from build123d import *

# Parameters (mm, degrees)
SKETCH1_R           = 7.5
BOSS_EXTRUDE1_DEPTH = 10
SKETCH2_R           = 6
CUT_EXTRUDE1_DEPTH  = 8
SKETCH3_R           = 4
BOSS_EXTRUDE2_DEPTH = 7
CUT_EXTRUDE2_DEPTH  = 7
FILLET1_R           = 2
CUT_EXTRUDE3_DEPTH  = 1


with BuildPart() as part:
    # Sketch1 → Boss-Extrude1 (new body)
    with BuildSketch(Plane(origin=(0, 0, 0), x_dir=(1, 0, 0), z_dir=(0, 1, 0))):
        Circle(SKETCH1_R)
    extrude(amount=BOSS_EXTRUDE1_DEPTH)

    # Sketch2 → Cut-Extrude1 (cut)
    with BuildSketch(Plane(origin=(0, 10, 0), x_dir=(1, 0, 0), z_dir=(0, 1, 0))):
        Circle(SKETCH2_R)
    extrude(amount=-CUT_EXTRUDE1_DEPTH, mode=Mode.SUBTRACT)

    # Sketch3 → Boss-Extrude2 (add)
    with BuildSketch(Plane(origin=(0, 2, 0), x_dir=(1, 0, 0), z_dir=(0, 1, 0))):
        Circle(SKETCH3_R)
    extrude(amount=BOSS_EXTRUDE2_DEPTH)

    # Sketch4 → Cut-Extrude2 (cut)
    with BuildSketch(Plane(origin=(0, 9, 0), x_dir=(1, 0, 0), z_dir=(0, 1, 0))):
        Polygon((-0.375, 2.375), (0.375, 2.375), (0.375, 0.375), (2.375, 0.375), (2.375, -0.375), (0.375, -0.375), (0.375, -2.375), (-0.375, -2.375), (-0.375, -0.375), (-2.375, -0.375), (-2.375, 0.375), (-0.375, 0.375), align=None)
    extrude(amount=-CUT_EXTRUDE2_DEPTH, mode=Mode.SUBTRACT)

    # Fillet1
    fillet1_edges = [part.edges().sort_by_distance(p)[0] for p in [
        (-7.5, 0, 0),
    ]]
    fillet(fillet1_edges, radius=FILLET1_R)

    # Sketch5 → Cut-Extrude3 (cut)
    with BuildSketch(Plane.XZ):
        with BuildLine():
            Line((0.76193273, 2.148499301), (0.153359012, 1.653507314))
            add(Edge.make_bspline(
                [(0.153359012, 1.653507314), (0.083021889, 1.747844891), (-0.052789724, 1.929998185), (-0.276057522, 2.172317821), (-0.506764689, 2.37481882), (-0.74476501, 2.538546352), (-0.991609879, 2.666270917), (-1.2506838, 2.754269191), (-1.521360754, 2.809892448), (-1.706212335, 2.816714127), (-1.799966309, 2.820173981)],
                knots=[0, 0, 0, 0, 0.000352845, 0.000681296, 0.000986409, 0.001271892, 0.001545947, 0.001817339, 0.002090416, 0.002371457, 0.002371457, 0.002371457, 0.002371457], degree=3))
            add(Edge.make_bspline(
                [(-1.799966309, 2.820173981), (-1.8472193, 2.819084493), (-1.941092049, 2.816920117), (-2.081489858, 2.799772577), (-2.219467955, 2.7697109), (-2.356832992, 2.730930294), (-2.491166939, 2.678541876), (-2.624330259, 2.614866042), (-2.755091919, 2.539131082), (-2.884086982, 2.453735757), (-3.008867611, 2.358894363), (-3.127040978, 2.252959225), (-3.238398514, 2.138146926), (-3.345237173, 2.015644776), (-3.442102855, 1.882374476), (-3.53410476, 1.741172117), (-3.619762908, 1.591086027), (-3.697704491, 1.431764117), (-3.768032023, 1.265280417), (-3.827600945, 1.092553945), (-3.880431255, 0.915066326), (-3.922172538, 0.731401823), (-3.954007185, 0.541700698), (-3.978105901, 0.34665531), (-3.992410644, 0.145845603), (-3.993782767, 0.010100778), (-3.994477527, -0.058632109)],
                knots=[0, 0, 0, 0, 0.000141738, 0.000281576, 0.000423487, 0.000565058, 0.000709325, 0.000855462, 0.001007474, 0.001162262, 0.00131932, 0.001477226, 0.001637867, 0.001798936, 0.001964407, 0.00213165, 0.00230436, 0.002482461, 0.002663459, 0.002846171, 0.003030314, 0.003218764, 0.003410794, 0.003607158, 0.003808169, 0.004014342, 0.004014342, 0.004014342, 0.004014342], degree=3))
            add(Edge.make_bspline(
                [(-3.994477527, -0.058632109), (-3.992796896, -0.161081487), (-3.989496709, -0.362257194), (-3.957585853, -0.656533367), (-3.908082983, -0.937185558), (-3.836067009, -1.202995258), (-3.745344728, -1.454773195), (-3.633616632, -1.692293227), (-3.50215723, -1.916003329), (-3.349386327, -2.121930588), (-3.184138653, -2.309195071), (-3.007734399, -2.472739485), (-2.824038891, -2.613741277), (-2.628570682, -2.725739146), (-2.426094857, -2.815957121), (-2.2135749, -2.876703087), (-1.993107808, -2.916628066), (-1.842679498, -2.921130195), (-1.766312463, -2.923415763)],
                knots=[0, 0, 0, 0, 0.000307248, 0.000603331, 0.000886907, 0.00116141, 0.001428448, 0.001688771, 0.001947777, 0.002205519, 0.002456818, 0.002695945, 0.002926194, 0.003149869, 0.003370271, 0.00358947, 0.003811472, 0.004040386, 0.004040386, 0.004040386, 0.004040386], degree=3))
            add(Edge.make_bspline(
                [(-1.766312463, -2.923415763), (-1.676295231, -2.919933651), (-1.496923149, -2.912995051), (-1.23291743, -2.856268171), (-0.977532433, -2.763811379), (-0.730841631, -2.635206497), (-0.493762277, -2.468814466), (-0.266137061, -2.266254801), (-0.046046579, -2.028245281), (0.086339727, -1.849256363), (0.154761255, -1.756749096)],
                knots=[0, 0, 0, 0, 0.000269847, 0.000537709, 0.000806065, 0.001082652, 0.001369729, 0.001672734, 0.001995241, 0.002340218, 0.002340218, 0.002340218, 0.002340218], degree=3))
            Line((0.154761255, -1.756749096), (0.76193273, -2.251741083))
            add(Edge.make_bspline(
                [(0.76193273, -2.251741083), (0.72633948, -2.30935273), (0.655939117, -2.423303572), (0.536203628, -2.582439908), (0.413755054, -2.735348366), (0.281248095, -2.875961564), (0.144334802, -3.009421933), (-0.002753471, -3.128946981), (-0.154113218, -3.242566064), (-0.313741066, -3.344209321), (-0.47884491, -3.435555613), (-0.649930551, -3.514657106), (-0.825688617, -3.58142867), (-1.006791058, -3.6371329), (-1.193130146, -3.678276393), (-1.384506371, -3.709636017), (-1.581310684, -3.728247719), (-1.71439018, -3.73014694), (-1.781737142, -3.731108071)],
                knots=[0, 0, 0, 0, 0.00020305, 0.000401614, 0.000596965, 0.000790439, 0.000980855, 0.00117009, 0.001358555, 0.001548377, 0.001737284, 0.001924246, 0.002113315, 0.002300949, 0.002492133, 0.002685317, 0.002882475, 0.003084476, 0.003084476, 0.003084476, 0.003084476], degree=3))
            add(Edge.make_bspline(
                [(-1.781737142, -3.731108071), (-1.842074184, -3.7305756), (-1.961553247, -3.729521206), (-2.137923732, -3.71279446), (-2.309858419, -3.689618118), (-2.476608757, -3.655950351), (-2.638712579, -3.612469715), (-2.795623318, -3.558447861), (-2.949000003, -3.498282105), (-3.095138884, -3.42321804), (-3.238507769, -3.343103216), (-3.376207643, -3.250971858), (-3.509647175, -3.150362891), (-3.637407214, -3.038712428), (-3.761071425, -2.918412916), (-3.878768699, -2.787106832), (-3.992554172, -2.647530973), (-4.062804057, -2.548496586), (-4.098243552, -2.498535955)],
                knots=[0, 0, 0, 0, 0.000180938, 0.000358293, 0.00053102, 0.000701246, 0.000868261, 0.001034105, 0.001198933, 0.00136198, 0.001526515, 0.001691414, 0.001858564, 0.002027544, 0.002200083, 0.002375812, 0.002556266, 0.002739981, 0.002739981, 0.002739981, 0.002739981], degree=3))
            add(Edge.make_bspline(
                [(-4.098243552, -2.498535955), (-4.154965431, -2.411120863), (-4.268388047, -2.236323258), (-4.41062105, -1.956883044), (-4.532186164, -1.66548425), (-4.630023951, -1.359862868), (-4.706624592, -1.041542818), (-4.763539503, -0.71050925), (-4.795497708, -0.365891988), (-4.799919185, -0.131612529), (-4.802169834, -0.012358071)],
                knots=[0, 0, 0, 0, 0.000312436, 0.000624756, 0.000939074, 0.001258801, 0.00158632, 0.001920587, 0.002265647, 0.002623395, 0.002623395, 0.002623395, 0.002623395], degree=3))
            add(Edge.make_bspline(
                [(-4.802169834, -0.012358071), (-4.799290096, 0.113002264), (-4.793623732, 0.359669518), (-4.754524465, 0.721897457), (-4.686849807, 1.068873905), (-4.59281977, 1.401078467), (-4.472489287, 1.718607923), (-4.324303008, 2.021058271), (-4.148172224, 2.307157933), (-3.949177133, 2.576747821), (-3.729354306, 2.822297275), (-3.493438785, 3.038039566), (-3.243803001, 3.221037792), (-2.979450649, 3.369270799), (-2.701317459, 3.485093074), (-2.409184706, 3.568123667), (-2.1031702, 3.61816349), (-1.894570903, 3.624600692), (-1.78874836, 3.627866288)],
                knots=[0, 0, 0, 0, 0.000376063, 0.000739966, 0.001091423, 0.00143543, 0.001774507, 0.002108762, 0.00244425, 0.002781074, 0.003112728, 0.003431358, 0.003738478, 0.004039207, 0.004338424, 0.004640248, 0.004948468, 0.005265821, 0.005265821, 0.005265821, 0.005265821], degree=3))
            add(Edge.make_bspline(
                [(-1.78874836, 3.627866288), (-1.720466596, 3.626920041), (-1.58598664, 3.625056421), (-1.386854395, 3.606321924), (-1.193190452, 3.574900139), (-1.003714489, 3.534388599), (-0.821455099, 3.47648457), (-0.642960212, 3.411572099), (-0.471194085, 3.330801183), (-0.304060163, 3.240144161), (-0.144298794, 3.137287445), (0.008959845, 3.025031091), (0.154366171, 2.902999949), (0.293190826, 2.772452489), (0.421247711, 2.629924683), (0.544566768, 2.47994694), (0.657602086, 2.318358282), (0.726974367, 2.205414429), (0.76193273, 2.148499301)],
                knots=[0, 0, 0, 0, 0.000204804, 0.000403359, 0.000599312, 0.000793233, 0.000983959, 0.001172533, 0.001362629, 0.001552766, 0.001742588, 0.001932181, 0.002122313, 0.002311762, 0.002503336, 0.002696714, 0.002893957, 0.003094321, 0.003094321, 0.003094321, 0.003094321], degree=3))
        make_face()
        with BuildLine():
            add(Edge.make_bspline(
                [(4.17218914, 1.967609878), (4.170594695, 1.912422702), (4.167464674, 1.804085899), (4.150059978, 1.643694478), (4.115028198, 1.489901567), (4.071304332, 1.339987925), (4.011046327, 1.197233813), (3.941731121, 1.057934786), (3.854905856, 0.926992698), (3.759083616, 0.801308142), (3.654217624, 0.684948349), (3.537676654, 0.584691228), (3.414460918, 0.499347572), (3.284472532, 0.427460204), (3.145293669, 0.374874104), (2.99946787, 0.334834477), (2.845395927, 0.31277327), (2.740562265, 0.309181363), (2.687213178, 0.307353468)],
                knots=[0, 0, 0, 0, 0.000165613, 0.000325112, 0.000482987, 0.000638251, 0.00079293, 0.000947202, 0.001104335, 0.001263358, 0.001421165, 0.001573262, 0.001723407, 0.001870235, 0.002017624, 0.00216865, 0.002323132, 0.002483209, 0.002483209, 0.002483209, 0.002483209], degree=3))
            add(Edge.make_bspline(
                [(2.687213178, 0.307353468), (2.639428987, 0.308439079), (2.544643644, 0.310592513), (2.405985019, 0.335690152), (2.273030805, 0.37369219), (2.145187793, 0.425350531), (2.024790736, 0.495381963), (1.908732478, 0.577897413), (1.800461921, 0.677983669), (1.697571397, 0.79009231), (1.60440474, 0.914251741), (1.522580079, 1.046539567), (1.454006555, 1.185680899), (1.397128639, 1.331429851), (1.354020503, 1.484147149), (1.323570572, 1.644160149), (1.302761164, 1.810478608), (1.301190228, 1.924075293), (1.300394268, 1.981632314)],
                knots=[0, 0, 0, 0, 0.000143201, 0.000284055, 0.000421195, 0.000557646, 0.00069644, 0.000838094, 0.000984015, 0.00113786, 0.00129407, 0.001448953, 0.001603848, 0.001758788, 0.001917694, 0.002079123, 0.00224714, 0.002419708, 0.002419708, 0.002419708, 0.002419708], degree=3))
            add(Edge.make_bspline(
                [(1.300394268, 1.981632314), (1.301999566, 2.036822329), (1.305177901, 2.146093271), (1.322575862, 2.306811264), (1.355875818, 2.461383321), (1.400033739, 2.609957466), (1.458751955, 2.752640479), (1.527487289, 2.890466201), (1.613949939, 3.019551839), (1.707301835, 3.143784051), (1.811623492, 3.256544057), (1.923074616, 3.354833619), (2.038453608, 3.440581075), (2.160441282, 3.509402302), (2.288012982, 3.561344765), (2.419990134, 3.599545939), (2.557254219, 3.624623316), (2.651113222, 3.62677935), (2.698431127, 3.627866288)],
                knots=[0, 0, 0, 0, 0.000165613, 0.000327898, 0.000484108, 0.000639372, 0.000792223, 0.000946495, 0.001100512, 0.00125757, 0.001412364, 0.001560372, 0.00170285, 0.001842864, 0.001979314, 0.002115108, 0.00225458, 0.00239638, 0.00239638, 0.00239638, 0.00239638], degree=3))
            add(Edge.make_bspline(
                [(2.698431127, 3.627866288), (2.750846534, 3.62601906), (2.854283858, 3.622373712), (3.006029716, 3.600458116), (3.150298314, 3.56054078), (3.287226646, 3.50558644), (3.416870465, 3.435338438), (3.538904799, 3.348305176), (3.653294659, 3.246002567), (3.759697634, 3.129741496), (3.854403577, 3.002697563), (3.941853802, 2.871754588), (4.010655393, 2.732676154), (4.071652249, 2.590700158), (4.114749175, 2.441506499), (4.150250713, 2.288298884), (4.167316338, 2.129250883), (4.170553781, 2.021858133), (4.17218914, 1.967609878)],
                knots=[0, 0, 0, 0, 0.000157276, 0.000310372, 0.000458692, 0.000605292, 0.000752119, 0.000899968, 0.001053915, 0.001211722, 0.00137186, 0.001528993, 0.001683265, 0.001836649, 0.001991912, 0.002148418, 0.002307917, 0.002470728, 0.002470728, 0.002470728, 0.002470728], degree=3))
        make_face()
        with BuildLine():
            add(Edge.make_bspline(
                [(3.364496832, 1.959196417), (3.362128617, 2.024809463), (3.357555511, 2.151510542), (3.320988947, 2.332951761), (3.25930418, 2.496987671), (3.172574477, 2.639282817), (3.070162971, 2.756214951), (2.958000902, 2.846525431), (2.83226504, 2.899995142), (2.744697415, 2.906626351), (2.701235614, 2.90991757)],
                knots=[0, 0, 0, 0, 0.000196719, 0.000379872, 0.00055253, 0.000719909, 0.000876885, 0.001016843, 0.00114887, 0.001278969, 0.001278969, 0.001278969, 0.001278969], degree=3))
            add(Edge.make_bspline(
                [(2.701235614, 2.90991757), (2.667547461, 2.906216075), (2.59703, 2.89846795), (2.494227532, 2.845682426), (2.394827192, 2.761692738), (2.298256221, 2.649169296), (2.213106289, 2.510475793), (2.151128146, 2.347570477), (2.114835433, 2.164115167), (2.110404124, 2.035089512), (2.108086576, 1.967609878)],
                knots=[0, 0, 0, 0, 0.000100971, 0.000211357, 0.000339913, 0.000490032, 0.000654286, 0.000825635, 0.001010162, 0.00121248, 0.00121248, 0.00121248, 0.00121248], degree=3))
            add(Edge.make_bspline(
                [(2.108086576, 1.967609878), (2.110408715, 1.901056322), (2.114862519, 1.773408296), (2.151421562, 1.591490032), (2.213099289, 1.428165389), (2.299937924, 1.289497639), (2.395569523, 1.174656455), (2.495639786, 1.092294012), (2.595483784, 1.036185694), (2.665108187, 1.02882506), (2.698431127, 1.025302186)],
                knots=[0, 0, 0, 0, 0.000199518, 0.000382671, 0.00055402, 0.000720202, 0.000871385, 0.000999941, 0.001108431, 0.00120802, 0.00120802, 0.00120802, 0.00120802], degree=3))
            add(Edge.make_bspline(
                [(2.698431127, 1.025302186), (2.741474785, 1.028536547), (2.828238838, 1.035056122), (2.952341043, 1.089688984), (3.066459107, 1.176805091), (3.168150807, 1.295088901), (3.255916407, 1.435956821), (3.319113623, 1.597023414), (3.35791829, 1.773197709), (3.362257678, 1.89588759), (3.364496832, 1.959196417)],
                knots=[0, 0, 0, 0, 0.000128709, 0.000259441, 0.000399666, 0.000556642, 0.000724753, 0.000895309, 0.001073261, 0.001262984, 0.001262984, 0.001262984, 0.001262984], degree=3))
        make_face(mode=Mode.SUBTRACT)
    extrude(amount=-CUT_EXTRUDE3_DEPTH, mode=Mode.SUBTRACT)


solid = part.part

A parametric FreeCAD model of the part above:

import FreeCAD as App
import Part
import Sketcher


def edges_at(feature, points):
    """Names of the edges that pass closest to the given points."""
    edges = feature.Shape.Edges
    near = lambda p: min(range(len(edges)), key=lambda i: edges[i].distToShape(Part.Vertex(*p))[0])
    return sorted({f"Edge{near(p) + 1}" for p in points})


def add_polygon(sketch, points):
    """Adds a closed chain of lines whose ends are joined by coincident constraints."""
    first, n = sketch.GeometryCount, len(points)
    for a, b in zip(points, points[1:] + points[:1]):
        sketch.addGeometry(Part.LineSegment(App.Vector(*a, 0), App.Vector(*b, 0)), False)
    for i in range(n):
        sketch.addConstraint(Sketcher.Constraint("Coincident", first + i, 2, first + (i + 1) % n, 1))

doc = App.newDocument("Part")
body = doc.addObject("PartDesign::Body", "Body")

# Sketch on XZ plane
sketch1 = doc.addObject("Sketcher::SketchObject", "Sketch")
body.addObject(sketch1)
sketch1.AttachmentSupport = (doc.XZ_Plane, [""])
sketch1.MapMode = "FlatFace"
sketch1.addGeometry(Part.Circle(App.Vector(0, 0, 0), App.Vector(0, 0, 1), 8), False)
sketch1.addConstraint(Sketcher.Constraint("Coincident", 0, 3, -1, 1))
sketch1.addConstraint(Sketcher.Constraint("Diameter", 0, 15.0))
pad1 = doc.addObject("PartDesign::Pad", "Pad")
body.addObject(pad1)
pad1.Profile = sketch1
pad1.Length = 10
pad1.Reversed = True

# Sketch on XZ plane
sketch2 = doc.addObject("Sketcher::SketchObject", "Sketch001")
body.addObject(sketch2)
sketch2.AttachmentSupport = (doc.XZ_Plane, [""])
sketch2.MapMode = "FlatFace"
sketch2.AttachmentOffset = App.Placement(App.Vector(0, 0, -10), App.Rotation())
sketch2.addGeometry(Part.Circle(App.Vector(0, 0, 0), App.Vector(0, 0, 1), 6), False)
sketch2.addConstraint(Sketcher.Constraint("Coincident", 0, 3, -1, 1))
sketch2.addConstraint(Sketcher.Constraint("Diameter", 0, 12.0))
pocket1 = doc.addObject("PartDesign::Pocket", "Pocket")
body.addObject(pocket1)
pocket1.Profile = sketch2
pocket1.Length = 8
pocket1.Reversed = True

# Sketch on XZ plane
sketch3 = doc.addObject("Sketcher::SketchObject", "Sketch002")
body.addObject(sketch3)
sketch3.AttachmentSupport = (doc.XZ_Plane, [""])
sketch3.MapMode = "FlatFace"
sketch3.AttachmentOffset = App.Placement(App.Vector(0, 0, -2), App.Rotation())
sketch3.addGeometry(Part.Circle(App.Vector(0, 0, 0), App.Vector(0, 0, 1), 4), False)
sketch3.addConstraint(Sketcher.Constraint("Coincident", 0, 3, -1, 1))
sketch3.addConstraint(Sketcher.Constraint("Diameter", 0, 8.0))
pad2 = doc.addObject("PartDesign::Pad", "Pad001")
body.addObject(pad2)
pad2.Profile = sketch3
pad2.Length = 7
pad2.Reversed = True

# Sketch on XZ plane
sketch4 = doc.addObject("Sketcher::SketchObject", "Sketch003")
body.addObject(sketch4)
sketch4.AttachmentSupport = (doc.XZ_Plane, [""])
sketch4.MapMode = "FlatFace"
sketch4.AttachmentOffset = App.Placement(App.Vector(0, 0, -9), App.Rotation())
add_polygon(sketch4, [(0.4, -2.4), (-0.4, -2.4), (-0.4, -0.4), (-2.4, -0.4), (-2.4, 0.4), (-0.4, 0.4), (-0.4, 2.4), (0.4, 2.4), (0.4, 0.4), (2.4, 0.4), (2.4, -0.4), (0.4, -0.4)])  # lines 0-11
sketch4.addConstraint(Sketcher.Constraint("Horizontal", 0))
sketch4.addConstraint(Sketcher.Constraint("Vertical", 1))
sketch4.addConstraint(Sketcher.Constraint("Horizontal", 2))
sketch4.addConstraint(Sketcher.Constraint("Vertical", 3))
sketch4.addConstraint(Sketcher.Constraint("Horizontal", 4))
sketch4.addConstraint(Sketcher.Constraint("Vertical", 5))
sketch4.addConstraint(Sketcher.Constraint("Horizontal", 6))
sketch4.addConstraint(Sketcher.Constraint("Vertical", 7))
sketch4.addConstraint(Sketcher.Constraint("Horizontal", 8))
sketch4.addConstraint(Sketcher.Constraint("Vertical", 9))
sketch4.addConstraint(Sketcher.Constraint("Horizontal", 10))
sketch4.addConstraint(Sketcher.Constraint("Vertical", 11))
sketch4.addConstraint(Sketcher.Constraint("Symmetric", 0, 2, 6, 2, -1, 1))
sketch4.addConstraint(Sketcher.Constraint("Symmetric", 2, 2, 8, 2, -1, 1))
sketch4.addConstraint(Sketcher.Constraint("Symmetric", 4, 2, 10, 2, -1, 1))
sketch4.addConstraint(Sketcher.Constraint("Symmetric", 4, 2, 7, 2, -2))
sketch4.addConstraint(Sketcher.Constraint("Equal", 10, 1))
sketch4.addConstraint(Sketcher.Constraint("Equal", 6, 3))
sketch4.addConstraint(Sketcher.Constraint("DistanceX", 2, 2, 2, 1, 2.0))
sketch4.addConstraint(Sketcher.Constraint("DistanceX", 0, 2, 0, 1, 0.75))
pocket2 = doc.addObject("PartDesign::Pocket", "Pocket001")
body.addObject(pocket2)
pocket2.Profile = sketch4
pocket2.Length = 7
pocket2.Reversed = True
doc.recompute()

fillet = doc.addObject("PartDesign::Fillet", "Fillet")
body.addObject(fillet)
fillet.Base = (pocket2, edges_at(pocket2, [(-7.5, 0, 0)]))
fillet.Radius = 2

# Sketch on XZ plane
sketch5 = doc.addObject("Sketcher::SketchObject", "Sketch004")
body.addObject(sketch5)
sketch5.AttachmentSupport = (doc.XZ_Plane, [""])
sketch5.MapMode = "FlatFace"
sketch5.addGeometry(Part.LineSegment(App.Vector(0.153359, 1.653507, 0), App.Vector(0.761933, 2.148499, 0)), False)
sketch5.addGeometry(Part.BSplineCurve([App.Vector(-1.788748, 3.627866, 0), App.Vector(-1.720467, 3.62692, 0), App.Vector(-1.585987, 3.625056, 0), App.Vector(-1.386854, 3.606322, 0), App.Vector(-1.19319, 3.5749, 0), App.Vector(-1.003714, 3.534389, 0), App.Vector(-0.821455, 3.476485, 0), App.Vector(-0.64296, 3.411572, 0), App.Vector(-0.471194, 3.330801, 0), App.Vector(-0.30406, 3.240144, 0), App.Vector(-0.144299, 3.137287, 0), App.Vector(0.00896, 3.025031, 0), App.Vector(0.154366, 2.903, 0), App.Vector(0.293191, 2.772452, 0), App.Vector(0.421248, 2.629925, 0), App.Vector(0.544567, 2.479947, 0), App.Vector(0.657602, 2.318358, 0), App.Vector(0.726974, 2.205414, 0), App.Vector(0.761933, 2.148499, 0)], [4, 1, 1, 1, 1, 1, 1, 1, 1, 1, 1, 1, 1, 1, 1, 1, 4], [0, 0.000204804, 0.000403359, 0.000599312, 0.000793233, 0.000983959, 0.001172533, 0.001362629, 0.001552766, 0.001742588, 0.001932181, 0.002122313, 0.002311762, 0.002503336, 0.002696714, 0.002893957, 0.003094321], False, 3, [1, 1, 1, 1, 1, 1, 1, 1, 1, 1, 1, 1, 1, 1, 1, 1, 1, 1, 1], False), False)
sketch5.addGeometry(Part.BSplineCurve([App.Vector(-4.80217, -0.012358, 0), App.Vector(-4.79929, 0.113002, 0), App.Vector(-4.793624, 0.35967, 0), App.Vector(-4.754524, 0.721897, 0), App.Vector(-4.68685, 1.068874, 0), App.Vector(-4.59282, 1.401078, 0), App.Vector(-4.472489, 1.718608, 0), App.Vector(-4.324303, 2.021058, 0), App.Vector(-4.148172, 2.307158, 0), App.Vector(-3.949177, 2.576748, 0), App.Vector(-3.729354, 2.822297, 0), App.Vector(-3.493439, 3.03804, 0), App.Vector(-3.243803, 3.221038, 0), App.Vector(-2.979451, 3.369271, 0), App.Vector(-2.701317, 3.485093, 0), App.Vector(-2.409185, 3.568124, 0), App.Vector(-2.10317, 3.618163, 0), App.Vector(-1.894571, 3.624601, 0), App.Vector(-1.788748, 3.627866, 0)], [4, 1, 1, 1, 1, 1, 1, 1, 1, 1, 1, 1, 1, 1, 1, 1, 4], [0, 0.000376063, 0.000739966, 0.001091423, 0.00143543, 0.001774507, 0.002108762, 0.00244425, 0.002781074, 0.003112728, 0.003431358, 0.003738478, 0.004039207, 0.004338424, 0.004640248, 0.004948468, 0.005265821], False, 3, [1, 1, 1, 1, 1, 1, 1, 1, 1, 1, 1, 1, 1, 1, 1, 1, 1, 1, 1], False), False)
sketch5.addGeometry(Part.BSplineCurve([App.Vector(-4.098244, -2.498536, 0), App.Vector(-4.154965, -2.411121, 0), App.Vector(-4.268388, -2.236323, 0), App.Vector(-4.410621, -1.956883, 0), App.Vector(-4.532186, -1.665484, 0), App.Vector(-4.630024, -1.359863, 0), App.Vector(-4.706625, -1.041543, 0), App.Vector(-4.76354, -0.710509, 0), App.Vector(-4.795498, -0.365892, 0), App.Vector(-4.799919, -0.131613, 0), App.Vector(-4.80217, -0.012358, 0)], [4, 1, 1, 1, 1, 1, 1, 1, 4], [0, 0.000312436, 0.000624756, 0.000939074, 0.001258801, 0.00158632, 0.001920587, 0.002265647, 0.002623395], False, 3, [1, 1, 1, 1, 1, 1, 1, 1, 1, 1, 1], False), False)
sketch5.addGeometry(Part.BSplineCurve([App.Vector(-1.781737, -3.731108, 0), App.Vector(-1.842074, -3.730576, 0), App.Vector(-1.961553, -3.729521, 0), App.Vector(-2.137924, -3.712794, 0), App.Vector(-2.309858, -3.689618, 0), App.Vector(-2.476609, -3.65595, 0), App.Vector(-2.638713, -3.61247, 0), App.Vector(-2.795623, -3.558448, 0), App.Vector(-2.949, -3.498282, 0), App.Vector(-3.095139, -3.423218, 0), App.Vector(-3.238508, -3.343103, 0), App.Vector(-3.376208, -3.250972, 0), App.Vector(-3.509647, -3.150363, 0), App.Vector(-3.637407, -3.038712, 0), App.Vector(-3.761071, -2.918413, 0), App.Vector(-3.878769, -2.787107, 0), App.Vector(-3.992554, -2.647531, 0), App.Vector(-4.062804, -2.548497, 0), App.Vector(-4.098244, -2.498536, 0)], [4, 1, 1, 1, 1, 1, 1, 1, 1, 1, 1, 1, 1, 1, 1, 1, 4], [0, 0.000180938, 0.000358293, 0.00053102, 0.000701246, 0.000868261, 0.001034105, 0.001198933, 0.00136198, 0.001526515, 0.001691414, 0.001858564, 0.002027544, 0.002200083, 0.002375812, 0.002556266, 0.002739981], False, 3, [1, 1, 1, 1, 1, 1, 1, 1, 1, 1, 1, 1, 1, 1, 1, 1, 1, 1, 1], False), False)
sketch5.addGeometry(Part.BSplineCurve([App.Vector(0.761933, -2.251741, 0), App.Vector(0.726339, -2.309353, 0), App.Vector(0.655939, -2.423304, 0), App.Vector(0.536204, -2.58244, 0), App.Vector(0.413755, -2.735348, 0), App.Vector(0.281248, -2.875962, 0), App.Vector(0.144335, -3.009422, 0), App.Vector(-0.002753, -3.128947, 0), App.Vector(-0.154113, -3.242566, 0), App.Vector(-0.313741, -3.344209, 0), App.Vector(-0.478845, -3.435556, 0), App.Vector(-0.649931, -3.514657, 0), App.Vector(-0.825689, -3.581429, 0), App.Vector(-1.006791, -3.637133, 0), App.Vector(-1.19313, -3.678276, 0), App.Vector(-1.384506, -3.709636, 0), App.Vector(-1.581311, -3.728248, 0), App.Vector(-1.71439, -3.730147, 0), App.Vector(-1.781737, -3.731108, 0)], [4, 1, 1, 1, 1, 1, 1, 1, 1, 1, 1, 1, 1, 1, 1, 1, 4], [0, 0.00020305, 0.000401614, 0.000596965, 0.000790439, 0.000980855, 0.00117009, 0.001358555, 0.001548377, 0.001737284, 0.001924246, 0.002113315, 0.002300949, 0.002492133, 0.002685317, 0.002882475, 0.003084476], False, 3, [1, 1, 1, 1, 1, 1, 1, 1, 1, 1, 1, 1, 1, 1, 1, 1, 1, 1, 1], False), False)
sketch5.addGeometry(Part.LineSegment(App.Vector(0.761933, -2.251741, 0), App.Vector(0.154761, -1.756749, 0)), False)
sketch5.addGeometry(Part.BSplineCurve([App.Vector(-1.766312, -2.923416, 0), App.Vector(-1.676295, -2.919934, 0), App.Vector(-1.496923, -2.912995, 0), App.Vector(-1.232917, -2.856268, 0), App.Vector(-0.977532, -2.763811, 0), App.Vector(-0.730842, -2.635206, 0), App.Vector(-0.493762, -2.468814, 0), App.Vector(-0.266137, -2.266255, 0), App.Vector(-0.046047, -2.028245, 0), App.Vector(0.08634, -1.849256, 0), App.Vector(0.154761, -1.756749, 0)], [4, 1, 1, 1, 1, 1, 1, 1, 4], [0, 0.000269847, 0.000537709, 0.000806065, 0.001082652, 0.001369729, 0.001672734, 0.001995241, 0.002340218], False, 3, [1, 1, 1, 1, 1, 1, 1, 1, 1, 1, 1], False), False)
sketch5.addGeometry(Part.BSplineCurve([App.Vector(-3.994478, -0.058632, 0), App.Vector(-3.992797, -0.161081, 0), App.Vector(-3.989497, -0.362257, 0), App.Vector(-3.957586, -0.656533, 0), App.Vector(-3.908083, -0.937186, 0), App.Vector(-3.836067, -1.202995, 0), App.Vector(-3.745345, -1.454773, 0), App.Vector(-3.633617, -1.692293, 0), App.Vector(-3.502157, -1.916003, 0), App.Vector(-3.349386, -2.121931, 0), App.Vector(-3.184139, -2.309195, 0), App.Vector(-3.007734, -2.472739, 0), App.Vector(-2.824039, -2.613741, 0), App.Vector(-2.628571, -2.725739, 0), App.Vector(-2.426095, -2.815957, 0), App.Vector(-2.213575, -2.876703, 0), App.Vector(-1.993108, -2.916628, 0), App.Vector(-1.842679, -2.92113, 0), App.Vector(-1.766312, -2.923416, 0)], [4, 1, 1, 1, 1, 1, 1, 1, 1, 1, 1, 1, 1, 1, 1, 1, 4], [0, 0.000307248, 0.000603331, 0.000886907, 0.00116141, 0.001428448, 0.001688771, 0.001947777, 0.002205519, 0.002456818, 0.002695945, 0.002926194, 0.003149869, 0.003370271, 0.00358947, 0.003811472, 0.004040386], False, 3, [1, 1, 1, 1, 1, 1, 1, 1, 1, 1, 1, 1, 1, 1, 1, 1, 1, 1, 1], False), False)
sketch5.addGeometry(Part.BSplineCurve([App.Vector(-1.799966, 2.820174, 0), App.Vector(-1.847219, 2.819084, 0), App.Vector(-1.941092, 2.81692, 0), App.Vector(-2.08149, 2.799773, 0), App.Vector(-2.219468, 2.769711, 0), App.Vector(-2.356833, 2.73093, 0), App.Vector(-2.491167, 2.678542, 0), App.Vector(-2.62433, 2.614866, 0), App.Vector(-2.755092, 2.539131, 0), App.Vector(-2.884087, 2.453736, 0), App.Vector(-3.008868, 2.358894, 0), App.Vector(-3.127041, 2.252959, 0), App.Vector(-3.238399, 2.138147, 0), App.Vector(-3.345237, 2.015645, 0), App.Vector(-3.442103, 1.882374, 0), App.Vector(-3.534105, 1.741172, 0), App.Vector(-3.619763, 1.591086, 0), App.Vector(-3.697704, 1.431764, 0), App.Vector(-3.768032, 1.26528, 0), App.Vector(-3.827601, 1.092554, 0), App.Vector(-3.880431, 0.915066, 0), App.Vector(-3.922173, 0.731402, 0), App.Vector(-3.954007, 0.541701, 0), App.Vector(-3.978106, 0.346655, 0), App.Vector(-3.992411, 0.145846, 0), App.Vector(-3.993783, 0.010101, 0), App.Vector(-3.994478, -0.058632, 0)], [4, 1, 1, 1, 1, 1, 1, 1, 1, 1, 1, 1, 1, 1, 1, 1, 1, 1, 1, 1, 1, 1, 1, 1, 4], [0, 0.000141738, 0.000281576, 0.000423487, 0.000565058, 0.000709325, 0.000855462, 0.001007474, 0.001162262, 0.00131932, 0.001477226, 0.001637867, 0.001798936, 0.001964407, 0.00213165, 0.00230436, 0.002482461, 0.002663459, 0.002846171, 0.003030314, 0.003218764, 0.003410794, 0.003607158, 0.003808169, 0.004014342], False, 3, [1, 1, 1, 1, 1, 1, 1, 1, 1, 1, 1, 1, 1, 1, 1, 1, 1, 1, 1, 1, 1, 1, 1, 1, 1, 1, 1], False), False)
sketch5.addGeometry(Part.BSplineCurve([App.Vector(0.153359, 1.653507, 0), App.Vector(0.083022, 1.747845, 0), App.Vector(-0.05279, 1.929998, 0), App.Vector(-0.276058, 2.172318, 0), App.Vector(-0.506765, 2.374819, 0), App.Vector(-0.744765, 2.538546, 0), App.Vector(-0.99161, 2.666271, 0), App.Vector(-1.250684, 2.754269, 0), App.Vector(-1.521361, 2.809892, 0), App.Vector(-1.706212, 2.816714, 0), App.Vector(-1.799966, 2.820174, 0)], [4, 1, 1, 1, 1, 1, 1, 1, 4], [0, 0.000352845, 0.000681296, 0.000986409, 0.001271892, 0.001545947, 0.001817339, 0.002090416, 0.002371457], False, 3, [1, 1, 1, 1, 1, 1, 1, 1, 1, 1, 1], False), False)
sketch5.addGeometry(Part.BSplineCurve([App.Vector(4.172189, 1.96761, 0), App.Vector(4.170595, 1.912423, 0), App.Vector(4.167465, 1.804086, 0), App.Vector(4.15006, 1.643694, 0), App.Vector(4.115028, 1.489902, 0), App.Vector(4.071304, 1.339988, 0), App.Vector(4.011046, 1.197234, 0), App.Vector(3.941731, 1.057935, 0), App.Vector(3.854906, 0.926993, 0), App.Vector(3.759084, 0.801308, 0), App.Vector(3.654218, 0.684948, 0), App.Vector(3.537677, 0.584691, 0), App.Vector(3.414461, 0.499348, 0), App.Vector(3.284473, 0.42746, 0), App.Vector(3.145294, 0.374874, 0), App.Vector(2.999468, 0.334834, 0), App.Vector(2.845396, 0.312773, 0), App.Vector(2.740562, 0.309181, 0), App.Vector(2.687213, 0.307353, 0)], [4, 1, 1, 1, 1, 1, 1, 1, 1, 1, 1, 1, 1, 1, 1, 1, 4], [0, 0.000165613, 0.000325112, 0.000482987, 0.000638251, 0.00079293, 0.000947202, 0.001104335, 0.001263358, 0.001421165, 0.001573262, 0.001723407, 0.001870235, 0.002017624, 0.00216865, 0.002323132, 0.002483209], False, 3, [1, 1, 1, 1, 1, 1, 1, 1, 1, 1, 1, 1, 1, 1, 1, 1, 1, 1, 1], False), False)
sketch5.addGeometry(Part.BSplineCurve([App.Vector(2.698431, 3.627866, 0), App.Vector(2.750847, 3.626019, 0), App.Vector(2.854284, 3.622374, 0), App.Vector(3.00603, 3.600458, 0), App.Vector(3.150298, 3.560541, 0), App.Vector(3.287227, 3.505586, 0), App.Vector(3.41687, 3.435338, 0), App.Vector(3.538905, 3.348305, 0), App.Vector(3.653295, 3.246003, 0), App.Vector(3.759698, 3.129741, 0), App.Vector(3.854404, 3.002698, 0), App.Vector(3.941854, 2.871755, 0), App.Vector(4.010655, 2.732676, 0), App.Vector(4.071652, 2.5907, 0), App.Vector(4.114749, 2.441506, 0), App.Vector(4.150251, 2.288299, 0), App.Vector(4.167316, 2.129251, 0), App.Vector(4.170554, 2.021858, 0), App.Vector(4.172189, 1.96761, 0)], [4, 1, 1, 1, 1, 1, 1, 1, 1, 1, 1, 1, 1, 1, 1, 1, 4], [0, 0.000157276, 0.000310372, 0.000458692, 0.000605292, 0.000752119, 0.000899968, 0.001053915, 0.001211722, 0.00137186, 0.001528993, 0.001683265, 0.001836649, 0.001991912, 0.002148418, 0.002307917, 0.002470728], False, 3, [1, 1, 1, 1, 1, 1, 1, 1, 1, 1, 1, 1, 1, 1, 1, 1, 1, 1, 1], False), False)
sketch5.addGeometry(Part.BSplineCurve([App.Vector(1.300394, 1.981632, 0), App.Vector(1.302, 2.036822, 0), App.Vector(1.305178, 2.146093, 0), App.Vector(1.322576, 2.306811, 0), App.Vector(1.355876, 2.461383, 0), App.Vector(1.400034, 2.609957, 0), App.Vector(1.458752, 2.75264, 0), App.Vector(1.527487, 2.890466, 0), App.Vector(1.61395, 3.019552, 0), App.Vector(1.707302, 3.143784, 0), App.Vector(1.811623, 3.256544, 0), App.Vector(1.923075, 3.354834, 0), App.Vector(2.038454, 3.440581, 0), App.Vector(2.160441, 3.509402, 0), App.Vector(2.288013, 3.561345, 0), App.Vector(2.41999, 3.599546, 0), App.Vector(2.557254, 3.624623, 0), App.Vector(2.651113, 3.626779, 0), App.Vector(2.698431, 3.627866, 0)], [4, 1, 1, 1, 1, 1, 1, 1, 1, 1, 1, 1, 1, 1, 1, 1, 4], [0, 0.000165613, 0.000327898, 0.000484108, 0.000639372, 0.000792223, 0.000946495, 0.001100512, 0.00125757, 0.001412364, 0.001560372, 0.00170285, 0.001842864, 0.001979314, 0.002115108, 0.00225458, 0.00239638], False, 3, [1, 1, 1, 1, 1, 1, 1, 1, 1, 1, 1, 1, 1, 1, 1, 1, 1, 1, 1], False), False)
sketch5.addGeometry(Part.BSplineCurve([App.Vector(2.687213, 0.307353, 0), App.Vector(2.639429, 0.308439, 0), App.Vector(2.544644, 0.310593, 0), App.Vector(2.405985, 0.33569, 0), App.Vector(2.273031, 0.373692, 0), App.Vector(2.145188, 0.425351, 0), App.Vector(2.024791, 0.495382, 0), App.Vector(1.908732, 0.577897, 0), App.Vector(1.800462, 0.677984, 0), App.Vector(1.697571, 0.790092, 0), App.Vector(1.604405, 0.914252, 0), App.Vector(1.52258, 1.04654, 0), App.Vector(1.454007, 1.185681, 0), App.Vector(1.397129, 1.33143, 0), App.Vector(1.354021, 1.484147, 0), App.Vector(1.323571, 1.64416, 0), App.Vector(1.302761, 1.810479, 0), App.Vector(1.30119, 1.924075, 0), App.Vector(1.300394, 1.981632, 0)], [4, 1, 1, 1, 1, 1, 1, 1, 1, 1, 1, 1, 1, 1, 1, 1, 4], [0, 0.000143201, 0.000284055, 0.000421195, 0.000557646, 0.00069644, 0.000838094, 0.000984015, 0.00113786, 0.00129407, 0.001448953, 0.001603848, 0.001758788, 0.001917694, 0.002079123, 0.00224714, 0.002419708], False, 3, [1, 1, 1, 1, 1, 1, 1, 1, 1, 1, 1, 1, 1, 1, 1, 1, 1, 1, 1], False), False)
sketch5.addGeometry(Part.BSplineCurve([App.Vector(2.698431, 1.025302, 0), App.Vector(2.741475, 1.028537, 0), App.Vector(2.828239, 1.035056, 0), App.Vector(2.952341, 1.089689, 0), App.Vector(3.066459, 1.176805, 0), App.Vector(3.168151, 1.295089, 0), App.Vector(3.255916, 1.435957, 0), App.Vector(3.319114, 1.597023, 0), App.Vector(3.357918, 1.773198, 0), App.Vector(3.362258, 1.895888, 0), App.Vector(3.364497, 1.959196, 0)], [4, 1, 1, 1, 1, 1, 1, 1, 4], [0, 0.000128709, 0.000259441, 0.000399666, 0.000556642, 0.000724753, 0.000895309, 0.001073261, 0.001262984], False, 3, [1, 1, 1, 1, 1, 1, 1, 1, 1, 1, 1], False), False)
sketch5.addGeometry(Part.BSplineCurve([App.Vector(2.108087, 1.96761, 0), App.Vector(2.110409, 1.901056, 0), App.Vector(2.114863, 1.773408, 0), App.Vector(2.151422, 1.59149, 0), App.Vector(2.213099, 1.428165, 0), App.Vector(2.299938, 1.289498, 0), App.Vector(2.39557, 1.174656, 0), App.Vector(2.49564, 1.092294, 0), App.Vector(2.595484, 1.036186, 0), App.Vector(2.665108, 1.028825, 0), App.Vector(2.698431, 1.025302, 0)], [4, 1, 1, 1, 1, 1, 1, 1, 4], [0, 0.000199518, 0.000382671, 0.00055402, 0.000720202, 0.000871385, 0.000999941, 0.001108431, 0.00120802], False, 3, [1, 1, 1, 1, 1, 1, 1, 1, 1, 1, 1], False), False)
sketch5.addGeometry(Part.BSplineCurve([App.Vector(2.701236, 2.909918, 0), App.Vector(2.667547, 2.906216, 0), App.Vector(2.59703, 2.898468, 0), App.Vector(2.494228, 2.845682, 0), App.Vector(2.394827, 2.761693, 0), App.Vector(2.298256, 2.649169, 0), App.Vector(2.213106, 2.510476, 0), App.Vector(2.151128, 2.34757, 0), App.Vector(2.114835, 2.164115, 0), App.Vector(2.110404, 2.03509, 0), App.Vector(2.108087, 1.96761, 0)], [4, 1, 1, 1, 1, 1, 1, 1, 4], [0, 0.000100971, 0.000211357, 0.000339913, 0.000490032, 0.000654286, 0.000825635, 0.001010162, 0.00121248], False, 3, [1, 1, 1, 1, 1, 1, 1, 1, 1, 1, 1], False), False)
sketch5.addGeometry(Part.BSplineCurve([App.Vector(3.364497, 1.959196, 0), App.Vector(3.362129, 2.024809, 0), App.Vector(3.357556, 2.151511, 0), App.Vector(3.320989, 2.332952, 0), App.Vector(3.259304, 2.496988, 0), App.Vector(3.172574, 2.639283, 0), App.Vector(3.070163, 2.756215, 0), App.Vector(2.958001, 2.846525, 0), App.Vector(2.832265, 2.899995, 0), App.Vector(2.744697, 2.906626, 0), App.Vector(2.701236, 2.909918, 0)], [4, 1, 1, 1, 1, 1, 1, 1, 4], [0, 0.000196719, 0.000379872, 0.00055253, 0.000719909, 0.000876885, 0.001016843, 0.00114887, 0.001278969], False, 3, [1, 1, 1, 1, 1, 1, 1, 1, 1, 1, 1], False), False)
sketch5.addConstraint(Sketcher.Constraint("Block", 1))
sketch5.addConstraint(Sketcher.Constraint("Block", 2))
sketch5.addConstraint(Sketcher.Constraint("Block", 3))
sketch5.addConstraint(Sketcher.Constraint("Block", 4))
sketch5.addConstraint(Sketcher.Constraint("Block", 5))
sketch5.addConstraint(Sketcher.Constraint("Block", 7))
sketch5.addConstraint(Sketcher.Constraint("Block", 8))
sketch5.addConstraint(Sketcher.Constraint("Block", 9))
sketch5.addConstraint(Sketcher.Constraint("Block", 10))
sketch5.addConstraint(Sketcher.Constraint("Block", 11))
sketch5.addConstraint(Sketcher.Constraint("Block", 12))
sketch5.addConstraint(Sketcher.Constraint("Block", 13))
sketch5.addConstraint(Sketcher.Constraint("Block", 14))
sketch5.addConstraint(Sketcher.Constraint("Block", 15))
sketch5.addConstraint(Sketcher.Constraint("Block", 16))
sketch5.addConstraint(Sketcher.Constraint("Block", 17))
sketch5.addConstraint(Sketcher.Constraint("Block", 18))
sketch5.addConstraint(Sketcher.Constraint("Coincident", 0, 2, 1, 2))
sketch5.addConstraint(Sketcher.Constraint("Coincident", 5, 1, 6, 1))
sketch5.addConstraint(Sketcher.Constraint("Coincident", 6, 2, 7, 2))
sketch5.addConstraint(Sketcher.Constraint("Coincident", 10, 1, 0, 1))
pocket3 = doc.addObject("PartDesign::Pocket", "Pocket002")
body.addObject(pocket3)
pocket3.Profile = sketch5
pocket3.Length = 1

doc.recompute()
